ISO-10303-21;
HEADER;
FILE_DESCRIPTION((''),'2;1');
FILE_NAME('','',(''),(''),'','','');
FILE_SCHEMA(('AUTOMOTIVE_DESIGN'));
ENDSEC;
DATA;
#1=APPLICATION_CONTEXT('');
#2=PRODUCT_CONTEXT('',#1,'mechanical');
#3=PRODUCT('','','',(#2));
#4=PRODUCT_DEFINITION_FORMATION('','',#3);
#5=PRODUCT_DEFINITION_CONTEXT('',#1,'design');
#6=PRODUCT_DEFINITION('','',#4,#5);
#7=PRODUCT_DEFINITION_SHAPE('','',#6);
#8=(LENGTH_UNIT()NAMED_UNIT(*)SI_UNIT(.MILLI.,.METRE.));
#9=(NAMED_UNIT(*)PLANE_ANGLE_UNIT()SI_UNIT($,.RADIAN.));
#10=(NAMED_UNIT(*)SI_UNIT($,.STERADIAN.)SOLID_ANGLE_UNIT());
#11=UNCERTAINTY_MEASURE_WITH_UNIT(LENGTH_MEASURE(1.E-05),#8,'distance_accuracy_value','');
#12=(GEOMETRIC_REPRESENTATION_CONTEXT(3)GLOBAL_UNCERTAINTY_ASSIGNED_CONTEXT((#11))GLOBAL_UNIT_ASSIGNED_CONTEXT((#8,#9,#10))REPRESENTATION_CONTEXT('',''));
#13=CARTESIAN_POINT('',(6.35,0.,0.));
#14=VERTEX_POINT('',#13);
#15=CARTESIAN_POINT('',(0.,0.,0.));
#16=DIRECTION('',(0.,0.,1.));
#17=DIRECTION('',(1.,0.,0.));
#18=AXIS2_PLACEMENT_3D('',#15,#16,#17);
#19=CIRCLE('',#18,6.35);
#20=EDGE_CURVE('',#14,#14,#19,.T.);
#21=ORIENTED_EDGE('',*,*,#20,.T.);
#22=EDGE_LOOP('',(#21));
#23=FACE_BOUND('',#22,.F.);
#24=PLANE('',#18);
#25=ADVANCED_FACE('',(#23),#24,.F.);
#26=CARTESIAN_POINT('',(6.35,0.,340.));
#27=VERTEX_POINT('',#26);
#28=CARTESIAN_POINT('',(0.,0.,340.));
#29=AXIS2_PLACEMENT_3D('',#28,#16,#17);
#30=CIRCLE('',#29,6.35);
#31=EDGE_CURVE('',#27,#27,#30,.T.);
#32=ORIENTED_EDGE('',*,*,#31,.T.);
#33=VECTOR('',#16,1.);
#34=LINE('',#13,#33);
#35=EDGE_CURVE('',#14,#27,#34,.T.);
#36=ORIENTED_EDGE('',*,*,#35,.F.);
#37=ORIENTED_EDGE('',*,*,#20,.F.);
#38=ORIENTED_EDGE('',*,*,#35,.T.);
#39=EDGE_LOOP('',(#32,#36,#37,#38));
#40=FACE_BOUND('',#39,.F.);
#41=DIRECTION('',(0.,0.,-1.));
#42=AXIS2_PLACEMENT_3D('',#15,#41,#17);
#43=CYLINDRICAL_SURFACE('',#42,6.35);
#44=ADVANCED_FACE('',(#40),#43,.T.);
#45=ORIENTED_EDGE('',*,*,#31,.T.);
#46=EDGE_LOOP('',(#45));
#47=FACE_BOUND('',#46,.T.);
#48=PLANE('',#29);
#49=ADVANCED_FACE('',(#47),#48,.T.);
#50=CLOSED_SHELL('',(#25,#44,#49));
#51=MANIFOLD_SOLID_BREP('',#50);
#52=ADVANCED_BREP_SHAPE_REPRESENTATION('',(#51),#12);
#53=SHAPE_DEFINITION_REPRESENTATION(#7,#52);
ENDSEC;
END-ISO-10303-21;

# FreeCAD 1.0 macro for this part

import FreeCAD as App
import Part
import Sketcher
from FreeCAD import Vector

doc = App.newDocument("Part")
body = doc.addObject("PartDesign::Body", "Body")

# Sketch on XY plane
sketch1 = doc.addObject("Sketcher::SketchObject", "Sketch")
body.addObject(sketch1)
sketch1.AttachmentSupport = (doc.XY_Plane, [""])
sketch1.MapMode = "FlatFace"
sketch1.addGeometry(Part.Circle(Vector(0, 0, 0), Vector(0, 0, 1), 6.35), False)
sketch1.addConstraint(Sketcher.Constraint("Coincident", 0, 3, -1, 1))
sketch1.addConstraint(Sketcher.Constraint("Diameter", 0, 12.7))
pad1 = doc.addObject("PartDesign::Pad", "Pad")
body.addObject(pad1)
pad1.Profile = sketch1
pad1.Length = 340

doc.recompute()
